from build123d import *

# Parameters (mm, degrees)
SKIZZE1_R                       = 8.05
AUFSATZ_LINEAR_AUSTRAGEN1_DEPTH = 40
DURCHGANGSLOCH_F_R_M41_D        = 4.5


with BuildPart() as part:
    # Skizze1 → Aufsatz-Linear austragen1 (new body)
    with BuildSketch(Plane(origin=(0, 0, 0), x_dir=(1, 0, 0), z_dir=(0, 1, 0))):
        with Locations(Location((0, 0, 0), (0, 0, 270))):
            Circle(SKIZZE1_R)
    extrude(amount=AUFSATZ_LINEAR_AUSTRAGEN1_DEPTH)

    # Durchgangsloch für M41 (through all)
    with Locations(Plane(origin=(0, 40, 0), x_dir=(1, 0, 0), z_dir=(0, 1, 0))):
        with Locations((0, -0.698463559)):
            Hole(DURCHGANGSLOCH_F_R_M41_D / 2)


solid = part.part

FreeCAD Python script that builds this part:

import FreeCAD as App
import Part
import Sketcher
Q = App.Units.Quantity

doc = App.newDocument("Part")
params = doc.addObject("Spreadsheet::Sheet", "Params")
for row, (alias, value) in enumerate([
    ("sketch1_diameter", "16.1 mm"),
    ("pad1_length", "40 mm"),
    ("sketch2_diameter", "4.5 mm"),
    ("hole_diameter", "4.5 mm"),
], start=1):
    params.set(f"A{row}", alias)
    params.set(f"B{row}", "=" + value)
    params.setAlias(f"B{row}", alias)

body = doc.addObject("PartDesign::Body", "Body")

sketch1 = doc.addObject("Sketcher::SketchObject", "Sketch")
body.addObject(sketch1)
sketch1.AttachmentSupport = (doc.XZ_Plane, [""])
sketch1.MapMode = "FlatFace"
sketch1.addGeometry(Part.Circle(App.Vector(0, 0, 0), App.Vector(0, 0, 1), 8.05), False)
sketch1.addConstraint([
    Sketcher.Constraint("Coincident", 0, 3, -1, 1),
    Sketcher.Constraint("Diameter", 0, Q("16.1 mm")),
])
sketch1.setExpression("Constraints[1]", "Params.sketch1_diameter")
pad1 = doc.addObject("PartDesign::Pad", "Pad")
body.addObject(pad1)
pad1.Profile = sketch1
pad1.setExpression("Length", "Params.pad1_length")
pad1.Reversed = True

sketch2 = doc.addObject("Sketcher::SketchObject", "Sketch001")
body.addObject(sketch2)
sketch2.AttachmentSupport = (doc.XZ_Plane, [""])
sketch2.MapMode = "FlatFace"
sketch2.AttachmentOffset = App.Placement(App.Vector(0, 0, -40), App.Rotation())
sketch2.addGeometry(Part.Circle(App.Vector(0, 0.698464, 0), App.Vector(0, 0, 1), 2.25), False)
sketch2.addConstraint([
    Sketcher.Constraint("PointOnObject", 0, 3, -2),
    Sketcher.Constraint("Diameter", 0, Q("4.5 mm")),
    Sketcher.Constraint("DistanceY", -1, 1, 0, 3, Q("0.698464 mm")),
])
sketch2.setExpression("Constraints[1]", "Params.sketch2_diameter")
doc.recompute()
hole = doc.addObject("PartDesign::Hole", "Hole")
body.addObject(hole)
hole.Profile = sketch2
hole.ThreadType = "None"
hole.setExpression("Diameter", "Params.hole_diameter")
hole.DepthType = "ThroughAll"
hole.Reversed = True

doc.recompute()
